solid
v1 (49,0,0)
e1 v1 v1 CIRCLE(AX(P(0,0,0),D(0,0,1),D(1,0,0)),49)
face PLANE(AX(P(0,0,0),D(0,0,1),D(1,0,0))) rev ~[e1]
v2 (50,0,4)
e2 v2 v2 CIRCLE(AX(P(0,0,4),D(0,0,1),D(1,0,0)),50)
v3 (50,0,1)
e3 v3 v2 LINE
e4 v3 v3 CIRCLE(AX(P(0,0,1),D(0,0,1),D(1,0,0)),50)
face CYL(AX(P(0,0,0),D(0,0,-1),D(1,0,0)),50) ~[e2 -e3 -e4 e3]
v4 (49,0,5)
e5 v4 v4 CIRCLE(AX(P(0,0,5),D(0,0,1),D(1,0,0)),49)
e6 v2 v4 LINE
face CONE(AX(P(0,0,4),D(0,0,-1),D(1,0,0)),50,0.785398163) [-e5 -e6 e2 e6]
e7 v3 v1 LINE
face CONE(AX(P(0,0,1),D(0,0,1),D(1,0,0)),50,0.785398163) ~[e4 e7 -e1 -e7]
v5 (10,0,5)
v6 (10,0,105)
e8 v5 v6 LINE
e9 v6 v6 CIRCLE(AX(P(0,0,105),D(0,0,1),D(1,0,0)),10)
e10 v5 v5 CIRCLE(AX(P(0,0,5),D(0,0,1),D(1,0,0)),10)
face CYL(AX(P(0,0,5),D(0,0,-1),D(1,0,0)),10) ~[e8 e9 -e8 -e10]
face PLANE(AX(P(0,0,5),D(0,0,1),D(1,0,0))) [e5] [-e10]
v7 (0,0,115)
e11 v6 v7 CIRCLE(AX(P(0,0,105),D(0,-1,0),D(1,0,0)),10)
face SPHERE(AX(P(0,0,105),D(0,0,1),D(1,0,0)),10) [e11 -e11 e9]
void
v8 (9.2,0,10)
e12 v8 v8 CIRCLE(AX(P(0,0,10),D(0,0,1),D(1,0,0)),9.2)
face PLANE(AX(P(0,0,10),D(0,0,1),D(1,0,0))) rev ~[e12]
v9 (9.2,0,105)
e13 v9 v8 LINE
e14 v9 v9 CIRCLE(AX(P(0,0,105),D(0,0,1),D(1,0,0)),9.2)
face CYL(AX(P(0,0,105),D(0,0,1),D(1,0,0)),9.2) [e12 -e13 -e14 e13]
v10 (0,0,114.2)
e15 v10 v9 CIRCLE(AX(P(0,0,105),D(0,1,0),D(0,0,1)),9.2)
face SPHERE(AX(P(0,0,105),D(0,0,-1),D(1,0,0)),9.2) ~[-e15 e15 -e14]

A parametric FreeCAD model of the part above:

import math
import FreeCAD as App
import Part
import Sketcher
Q = App.Units.Quantity


def edges_at(feature, points):
    """Names of the edges that pass closest to the given points."""
    edges = feature.Shape.Edges
    near = lambda p: min(range(len(edges)), key=lambda i: edges[i].distToShape(Part.Vertex(*p))[0])
    return sorted({f"Edge{near(p) + 1}" for p in points})

doc = App.newDocument("Part")
params = doc.addObject("Spreadsheet::Sheet", "Params")
for row, (alias, value) in enumerate([
    ("sketch1_diameter", "100 mm"),
    ("pad1_length", "5 mm"),
    ("sketch2_diameter", "20 mm"),
    ("pad2_length", "100 mm"),
    ("sketch3_diameter", "18.4 mm"),
    ("pocket1_length", "95 mm"),
    ("chamfer_size", "1 mm"),
    ("sketch4_radius", "10 mm"),
    ("sketch4_radius2", "9.2 mm"),
    ("revolution_angle", "360 deg"),
], start=1):
    params.set(f"A{row}", alias)
    params.set(f"B{row}", "=" + value)
    params.setAlias(f"B{row}", alias)

body = doc.addObject("PartDesign::Body", "Body")

# Sketch on XY plane
sketch1 = body.newObject("Sketcher::SketchObject", "Sketch")
sketch1.AttachmentSupport = (doc.getObject("XY_Plane"), [""])
sketch1.MapMode = "FlatFace"
sketch1.addGeometry(Part.Circle(App.Vector(0, 0, 0), App.Vector(0, 0, 1), 50), False)
sketch1.addConstraint([
    Sketcher.Constraint("Coincident", 0, 3, -1, 1),
    Sketcher.Constraint("Diameter", 0, Q("100 mm")),
])
sketch1.setExpression("Constraints[1]", "Params.sketch1_diameter")
pad1 = body.newObject("PartDesign::Pad", "Pad")
pad1.Profile = sketch1
pad1.setExpression("Length", "Params.pad1_length")

# Sketch on XY plane
sketch2 = body.newObject("Sketcher::SketchObject", "Sketch001")
sketch2.AttachmentSupport = (doc.getObject("XY_Plane"), [""])
sketch2.MapMode = "FlatFace"
sketch2.AttachmentOffset = App.Placement(App.Vector(0, 0, 5), App.Rotation())
sketch2.addGeometry(Part.Circle(App.Vector(0, 0, 0), App.Vector(0, 0, 1), 10), False)
sketch2.addConstraint([
    Sketcher.Constraint("Coincident", 0, 3, -1, 1),
    Sketcher.Constraint("Diameter", 0, Q("20 mm")),
])
sketch2.setExpression("Constraints[1]", "Params.sketch2_diameter")
pad2 = body.newObject("PartDesign::Pad", "Pad001")
pad2.Profile = sketch2
pad2.setExpression("Length", "Params.pad2_length")

# Sketch on XY plane
sketch3 = body.newObject("Sketcher::SketchObject", "Sketch002")
sketch3.AttachmentSupport = (doc.getObject("XY_Plane"), [""])
sketch3.MapMode = "FlatFace"
sketch3.AttachmentOffset = App.Placement(App.Vector(0, 0, 105), App.Rotation())
sketch3.addGeometry(Part.Circle(App.Vector(0, 0, 0), App.Vector(0, 0, 1), 9), False)
sketch3.addConstraint([
    Sketcher.Constraint("Coincident", 0, 3, -1, 1),
    Sketcher.Constraint("Diameter", 0, Q("18.4 mm")),
])
sketch3.setExpression("Constraints[1]", "Params.sketch3_diameter")
pocket1 = body.newObject("PartDesign::Pocket", "Pocket")
pocket1.Profile = sketch3
pocket1.setExpression("Length", "Params.pocket1_length")
doc.recompute()

chamfer = body.newObject("PartDesign::Chamfer", "Chamfer")
chamfer.Base = (pocket1, edges_at(pocket1, [(-50, 0, 5), (-50, 0, 0)]))
chamfer.setExpression("Size", "Params.chamfer_size")

# Sketch on XZ plane
sketch4 = body.newObject("Sketcher::SketchObject", "Sketch003")
sketch4.AttachmentSupport = (doc.getObject("XZ_Plane"), [""])
sketch4.MapMode = "FlatFace"
sketch4.addGeometry([
    Part.LineSegment(App.Vector(9.2, 105, 0), App.Vector(10, 105, 0)),
    Part.ArcOfCircle(Part.Circle(App.Vector(0, 105, 0), App.Vector(0, 0, 1), 10), math.radians(0), math.radians(90)),
    Part.LineSegment(App.Vector(0, 115, 0), App.Vector(0, 114.2, 0)),
    Part.ArcOfCircle(Part.Circle(App.Vector(0, 105, 0), App.Vector(0, 0, 1), 9.2), math.radians(0), math.radians(90)),
], False)
sketch4.addConstraint([
    Sketcher.Constraint("Coincident", 0, 2, 1, 1),
    Sketcher.Constraint("Coincident", 1, 2, 2, 1),
    Sketcher.Constraint("Coincident", 2, 2, 3, 2),
    Sketcher.Constraint("Coincident", 3, 1, 0, 1),
    Sketcher.Constraint("Horizontal", 0),
    Sketcher.Constraint("Vertical", 2),
    Sketcher.Constraint("Coincident", 3, 3, 1, 3),
    Sketcher.Constraint("PointOnObject", 1, 3, -2),
    Sketcher.Constraint("PointOnObject", 1, 2, -2),
    Sketcher.Constraint("Horizontal", 3, 3, 0, 2),
    Sketcher.Constraint("Radius", 1, Q("10 mm")),
    Sketcher.Constraint("Radius", 3, Q("9.2 mm")),
    Sketcher.Constraint("DistanceY", -1, 1, 1, 3, Q("105 mm")),
])
sketch4.setExpression("Constraints[10]", "Params.sketch4_radius")
sketch4.setExpression("Constraints[11]", "Params.sketch4_radius2")
revolution = body.newObject("PartDesign::Revolution", "Revolution")
revolution.Profile = sketch4
revolution.ReferenceAxis = (sketch4, ["V_Axis"])
revolution.setExpression("Angle", "Params.revolution_angle")

doc.recompute()
